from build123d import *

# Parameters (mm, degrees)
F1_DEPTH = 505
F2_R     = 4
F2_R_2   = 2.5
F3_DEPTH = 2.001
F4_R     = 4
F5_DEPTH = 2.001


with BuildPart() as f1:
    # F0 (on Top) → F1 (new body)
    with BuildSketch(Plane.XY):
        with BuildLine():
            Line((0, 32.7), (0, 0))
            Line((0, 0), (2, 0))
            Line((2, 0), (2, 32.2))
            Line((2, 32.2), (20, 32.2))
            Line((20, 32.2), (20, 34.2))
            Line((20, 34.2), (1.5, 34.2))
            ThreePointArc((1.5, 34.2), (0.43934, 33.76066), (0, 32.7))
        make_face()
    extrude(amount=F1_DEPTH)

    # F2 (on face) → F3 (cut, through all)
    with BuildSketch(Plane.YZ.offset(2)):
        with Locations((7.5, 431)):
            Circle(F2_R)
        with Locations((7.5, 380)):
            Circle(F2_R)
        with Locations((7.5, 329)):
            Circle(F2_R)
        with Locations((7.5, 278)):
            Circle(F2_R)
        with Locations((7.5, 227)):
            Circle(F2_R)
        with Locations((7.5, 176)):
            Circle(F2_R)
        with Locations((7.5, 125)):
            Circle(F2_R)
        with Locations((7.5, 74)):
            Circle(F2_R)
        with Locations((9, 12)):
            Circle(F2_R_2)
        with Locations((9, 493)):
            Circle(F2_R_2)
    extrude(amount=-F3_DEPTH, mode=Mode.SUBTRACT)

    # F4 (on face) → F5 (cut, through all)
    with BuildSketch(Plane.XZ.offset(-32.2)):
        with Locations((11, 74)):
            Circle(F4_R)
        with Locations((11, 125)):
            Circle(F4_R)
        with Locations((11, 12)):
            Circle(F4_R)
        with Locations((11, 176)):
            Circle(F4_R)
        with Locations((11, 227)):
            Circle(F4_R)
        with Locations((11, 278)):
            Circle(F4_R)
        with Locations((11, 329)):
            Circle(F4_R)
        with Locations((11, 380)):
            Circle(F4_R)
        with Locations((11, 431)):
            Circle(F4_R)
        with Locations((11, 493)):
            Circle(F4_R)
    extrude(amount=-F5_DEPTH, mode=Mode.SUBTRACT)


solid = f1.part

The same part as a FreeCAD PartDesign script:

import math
import FreeCAD as App
import Part
import Sketcher
from FreeCAD import Vector

doc = App.newDocument("Part")
body = doc.addObject("PartDesign::Body", "Body")

# Sketch on XY plane
sketch1 = body.newObject("Sketcher::SketchObject", "Sketch")
sketch1.AttachmentSupport = (doc.getObject("XY_Plane"), [""])
sketch1.MapMode = "FlatFace"
sketch1.addGeometry([
    Part.LineSegment(Vector(0, 32.7, 0), Vector(0, 0, 0)),  # 0
    Part.LineSegment(Vector(0, 0, 0), Vector(2, 0, 0)),  # 1
    Part.LineSegment(Vector(2, 0, 0), Vector(2, 32.2, 0)),  # 2
    Part.LineSegment(Vector(2, 32.2, 0), Vector(20, 32.2, 0)),  # 3
    Part.LineSegment(Vector(20, 32.2, 0), Vector(20, 34.2, 0)),  # 4
    Part.LineSegment(Vector(20, 34.2, 0), Vector(1.5, 34.2, 0)),  # 5
    Part.ArcOfCircle(Part.Circle(Vector(1.5, 32.7, 0), Vector(0, 0, 1), 1.5), math.radians(90), math.radians(180)),  # 6
], False)
sketch1.addConstraint([
    Sketcher.Constraint("Coincident", 0, 2, 1, 1),
    Sketcher.Constraint("Coincident", 1, 2, 2, 1),
    Sketcher.Constraint("Coincident", 2, 2, 3, 1),
    Sketcher.Constraint("Coincident", 3, 2, 4, 1),
    Sketcher.Constraint("Coincident", 4, 2, 5, 1),
    Sketcher.Constraint("Tangent", 5, 2, 6, 1),
    Sketcher.Constraint("Tangent", 6, 2, 0, 1),
    Sketcher.Constraint("Vertical", 0),
    Sketcher.Constraint("Horizontal", 1),
    Sketcher.Constraint("Vertical", 2),
    Sketcher.Constraint("Horizontal", 3),
    Sketcher.Constraint("Vertical", 4),
    Sketcher.Constraint("Horizontal", 5),
    Sketcher.Constraint("Coincident", 0, 2, -1, 1),
    Sketcher.Constraint("Equal", 1, 4),
    Sketcher.Constraint("Radius", 6, 1.500001),
    Sketcher.Constraint("DistanceX", 1, 1, 1, 2, 2.0),
    Sketcher.Constraint("DistanceX", 3, 1, 3, 2, 18.0),
    Sketcher.Constraint("DistanceY", 0, 2, 0, 1, 32.7),
])
pad1 = body.newObject("PartDesign::Pad", "Pad")
pad1.Profile = sketch1
pad1.Length = 505

# Sketch on YZ plane
sketch2 = body.newObject("Sketcher::SketchObject", "Sketch001")
sketch2.AttachmentSupport = (doc.getObject("YZ_Plane"), [""])
sketch2.MapMode = "FlatFace"
sketch2.AttachmentOffset = App.Placement(Vector(0, 0, 2), App.Rotation())
sketch2.addGeometry([
    Part.Circle(Vector(7.5, 431, 0), Vector(0, 0, 1), 4),  # 0
    Part.Circle(Vector(7.5, 380, 0), Vector(0, 0, 1), 4),  # 1
    Part.Circle(Vector(7.5, 329, 0), Vector(0, 0, 1), 4),  # 2
    Part.Circle(Vector(7.5, 278, 0), Vector(0, 0, 1), 4),  # 3
    Part.Circle(Vector(7.5, 227, 0), Vector(0, 0, 1), 4),  # 4
    Part.Circle(Vector(7.5, 176, 0), Vector(0, 0, 1), 4),  # 5
    Part.Circle(Vector(7.5, 125, 0), Vector(0, 0, 1), 4),  # 6
    Part.Circle(Vector(7.5, 74, 0), Vector(0, 0, 1), 4),  # 7
    Part.Circle(Vector(9, 12, 0), Vector(0, 0, 1), 2.5),  # 8
    Part.Circle(Vector(9, 493, 0), Vector(0, 0, 1), 2.5),  # 9
], False)
sketch2.addConstraint([
    Sketcher.Constraint("Equal", 0, 1),
    Sketcher.Constraint("Equal", 1, 2),
    Sketcher.Constraint("Equal", 2, 3),
    Sketcher.Constraint("Equal", 3, 4),
    Sketcher.Constraint("Equal", 4, 5),
    Sketcher.Constraint("Equal", 5, 6),
    Sketcher.Constraint("Equal", 6, 7),
    Sketcher.Constraint("Equal", 8, 9),
    Sketcher.Constraint("Vertical", 0, 3, 1, 3),
    Sketcher.Constraint("Vertical", 1, 3, 2, 3),
    Sketcher.Constraint("Vertical", 2, 3, 3, 3),
    Sketcher.Constraint("Vertical", 3, 3, 4, 3),
    Sketcher.Constraint("Vertical", 4, 3, 5, 3),
    Sketcher.Constraint("Vertical", 5, 3, 6, 3),
    Sketcher.Constraint("Vertical", 6, 3, 7, 3),
    Sketcher.Constraint("Vertical", 8, 3, 9, 3),
    Sketcher.Constraint("Diameter", 0, 8.0),
    Sketcher.Constraint("Diameter", 8, 5.0),
    Sketcher.Constraint("DistanceY", -1, 1, 0, 3, 431.0),
    Sketcher.Constraint("DistanceY", -1, 1, 1, 3, 380.0),
    Sketcher.Constraint("DistanceY", -1, 1, 2, 3, 329.0),
    Sketcher.Constraint("DistanceY", -1, 1, 3, 3, 278.0),
    Sketcher.Constraint("DistanceY", -1, 1, 4, 3, 227.0),
    Sketcher.Constraint("DistanceY", -1, 1, 5, 3, 176.0),
    Sketcher.Constraint("DistanceY", -1, 1, 6, 3, 125.0),
    Sketcher.Constraint("DistanceY", -1, 1, 7, 3, 74.0),
    Sketcher.Constraint("DistanceX", -1, 1, 8, 3, 9.0),
    Sketcher.Constraint("DistanceY", -1, 1, 8, 3, 12.0),
    Sketcher.Constraint("DistanceY", -1, 1, 9, 3, 493.0),
    Sketcher.Constraint("DistanceX", -1, 1, 0, 3, 7.5),
])
pocket1 = body.newObject("PartDesign::Pocket", "Pocket")
pocket1.Profile = sketch2
pocket1.Type = "ThroughAll"

# Sketch on XZ plane
sketch3 = body.newObject("Sketcher::SketchObject", "Sketch002")
sketch3.AttachmentSupport = (doc.getObject("XZ_Plane"), [""])
sketch3.MapMode = "FlatFace"
sketch3.AttachmentOffset = App.Placement(Vector(0, 0, -32.2), App.Rotation())
sketch3.addGeometry([
    Part.Circle(Vector(11, 74, 0), Vector(0, 0, 1), 4),  # 0
    Part.Circle(Vector(11, 125, 0), Vector(0, 0, 1), 4),  # 1
    Part.Circle(Vector(11, 12, 0), Vector(0, 0, 1), 4),  # 2
    Part.Circle(Vector(11, 176, 0), Vector(0, 0, 1), 4),  # 3
    Part.Circle(Vector(11, 227, 0), Vector(0, 0, 1), 4),  # 4
    Part.Circle(Vector(11, 278, 0), Vector(0, 0, 1), 4),  # 5
    Part.Circle(Vector(11, 329, 0), Vector(0, 0, 1), 4),  # 6
    Part.Circle(Vector(11, 380, 0), Vector(0, 0, 1), 4),  # 7
    Part.Circle(Vector(11, 431, 0), Vector(0, 0, 1), 4),  # 8
    Part.Circle(Vector(11, 493, 0), Vector(0, 0, 1), 4),  # 9
], False)
sketch3.addConstraint([
    Sketcher.Constraint("Equal", 0, 1),
    Sketcher.Constraint("Equal", 1, 2),
    Sketcher.Constraint("Equal", 2, 3),
    Sketcher.Constraint("Equal", 3, 4),
    Sketcher.Constraint("Equal", 4, 5),
    Sketcher.Constraint("Equal", 5, 6),
    Sketcher.Constraint("Equal", 6, 7),
    Sketcher.Constraint("Equal", 7, 8),
    Sketcher.Constraint("Equal", 8, 9),
    Sketcher.Constraint("Vertical", 0, 3, 1, 3),
    Sketcher.Constraint("Vertical", 1, 3, 2, 3),
    Sketcher.Constraint("Vertical", 2, 3, 3, 3),
    Sketcher.Constraint("Vertical", 3, 3, 4, 3),
    Sketcher.Constraint("Vertical", 4, 3, 5, 3),
    Sketcher.Constraint("Vertical", 5, 3, 6, 3),
    Sketcher.Constraint("Vertical", 6, 3, 7, 3),
    Sketcher.Constraint("Vertical", 7, 3, 8, 3),
    Sketcher.Constraint("Vertical", 8, 3, 9, 3),
    Sketcher.Constraint("Diameter", 0, 8.0),
    Sketcher.Constraint("DistanceX", -1, 1, 0, 3, 11.0),
    Sketcher.Constraint("DistanceY", -1, 1, 0, 3, 74.0),
    Sketcher.Constraint("DistanceY", -1, 1, 1, 3, 125.0),
    Sketcher.Constraint("DistanceY", -1, 1, 2, 3, 12.0),
    Sketcher.Constraint("DistanceY", -1, 1, 3, 3, 176.0),
    Sketcher.Constraint("DistanceY", -1, 1, 4, 3, 227.0),
    Sketcher.Constraint("DistanceY", -1, 1, 5, 3, 278.0),
    Sketcher.Constraint("DistanceY", -1, 1, 6, 3, 329.0),
    Sketcher.Constraint("DistanceY", -1, 1, 7, 3, 380.0),
    Sketcher.Constraint("DistanceY", -1, 1, 8, 3, 431.0),
    Sketcher.Constraint("DistanceY", -1, 1, 9, 3, 493.0),
])
pocket2 = body.newObject("PartDesign::Pocket", "Pocket001")
pocket2.Profile = sketch3
pocket2.Type = "ThroughAll"

doc.recompute()
